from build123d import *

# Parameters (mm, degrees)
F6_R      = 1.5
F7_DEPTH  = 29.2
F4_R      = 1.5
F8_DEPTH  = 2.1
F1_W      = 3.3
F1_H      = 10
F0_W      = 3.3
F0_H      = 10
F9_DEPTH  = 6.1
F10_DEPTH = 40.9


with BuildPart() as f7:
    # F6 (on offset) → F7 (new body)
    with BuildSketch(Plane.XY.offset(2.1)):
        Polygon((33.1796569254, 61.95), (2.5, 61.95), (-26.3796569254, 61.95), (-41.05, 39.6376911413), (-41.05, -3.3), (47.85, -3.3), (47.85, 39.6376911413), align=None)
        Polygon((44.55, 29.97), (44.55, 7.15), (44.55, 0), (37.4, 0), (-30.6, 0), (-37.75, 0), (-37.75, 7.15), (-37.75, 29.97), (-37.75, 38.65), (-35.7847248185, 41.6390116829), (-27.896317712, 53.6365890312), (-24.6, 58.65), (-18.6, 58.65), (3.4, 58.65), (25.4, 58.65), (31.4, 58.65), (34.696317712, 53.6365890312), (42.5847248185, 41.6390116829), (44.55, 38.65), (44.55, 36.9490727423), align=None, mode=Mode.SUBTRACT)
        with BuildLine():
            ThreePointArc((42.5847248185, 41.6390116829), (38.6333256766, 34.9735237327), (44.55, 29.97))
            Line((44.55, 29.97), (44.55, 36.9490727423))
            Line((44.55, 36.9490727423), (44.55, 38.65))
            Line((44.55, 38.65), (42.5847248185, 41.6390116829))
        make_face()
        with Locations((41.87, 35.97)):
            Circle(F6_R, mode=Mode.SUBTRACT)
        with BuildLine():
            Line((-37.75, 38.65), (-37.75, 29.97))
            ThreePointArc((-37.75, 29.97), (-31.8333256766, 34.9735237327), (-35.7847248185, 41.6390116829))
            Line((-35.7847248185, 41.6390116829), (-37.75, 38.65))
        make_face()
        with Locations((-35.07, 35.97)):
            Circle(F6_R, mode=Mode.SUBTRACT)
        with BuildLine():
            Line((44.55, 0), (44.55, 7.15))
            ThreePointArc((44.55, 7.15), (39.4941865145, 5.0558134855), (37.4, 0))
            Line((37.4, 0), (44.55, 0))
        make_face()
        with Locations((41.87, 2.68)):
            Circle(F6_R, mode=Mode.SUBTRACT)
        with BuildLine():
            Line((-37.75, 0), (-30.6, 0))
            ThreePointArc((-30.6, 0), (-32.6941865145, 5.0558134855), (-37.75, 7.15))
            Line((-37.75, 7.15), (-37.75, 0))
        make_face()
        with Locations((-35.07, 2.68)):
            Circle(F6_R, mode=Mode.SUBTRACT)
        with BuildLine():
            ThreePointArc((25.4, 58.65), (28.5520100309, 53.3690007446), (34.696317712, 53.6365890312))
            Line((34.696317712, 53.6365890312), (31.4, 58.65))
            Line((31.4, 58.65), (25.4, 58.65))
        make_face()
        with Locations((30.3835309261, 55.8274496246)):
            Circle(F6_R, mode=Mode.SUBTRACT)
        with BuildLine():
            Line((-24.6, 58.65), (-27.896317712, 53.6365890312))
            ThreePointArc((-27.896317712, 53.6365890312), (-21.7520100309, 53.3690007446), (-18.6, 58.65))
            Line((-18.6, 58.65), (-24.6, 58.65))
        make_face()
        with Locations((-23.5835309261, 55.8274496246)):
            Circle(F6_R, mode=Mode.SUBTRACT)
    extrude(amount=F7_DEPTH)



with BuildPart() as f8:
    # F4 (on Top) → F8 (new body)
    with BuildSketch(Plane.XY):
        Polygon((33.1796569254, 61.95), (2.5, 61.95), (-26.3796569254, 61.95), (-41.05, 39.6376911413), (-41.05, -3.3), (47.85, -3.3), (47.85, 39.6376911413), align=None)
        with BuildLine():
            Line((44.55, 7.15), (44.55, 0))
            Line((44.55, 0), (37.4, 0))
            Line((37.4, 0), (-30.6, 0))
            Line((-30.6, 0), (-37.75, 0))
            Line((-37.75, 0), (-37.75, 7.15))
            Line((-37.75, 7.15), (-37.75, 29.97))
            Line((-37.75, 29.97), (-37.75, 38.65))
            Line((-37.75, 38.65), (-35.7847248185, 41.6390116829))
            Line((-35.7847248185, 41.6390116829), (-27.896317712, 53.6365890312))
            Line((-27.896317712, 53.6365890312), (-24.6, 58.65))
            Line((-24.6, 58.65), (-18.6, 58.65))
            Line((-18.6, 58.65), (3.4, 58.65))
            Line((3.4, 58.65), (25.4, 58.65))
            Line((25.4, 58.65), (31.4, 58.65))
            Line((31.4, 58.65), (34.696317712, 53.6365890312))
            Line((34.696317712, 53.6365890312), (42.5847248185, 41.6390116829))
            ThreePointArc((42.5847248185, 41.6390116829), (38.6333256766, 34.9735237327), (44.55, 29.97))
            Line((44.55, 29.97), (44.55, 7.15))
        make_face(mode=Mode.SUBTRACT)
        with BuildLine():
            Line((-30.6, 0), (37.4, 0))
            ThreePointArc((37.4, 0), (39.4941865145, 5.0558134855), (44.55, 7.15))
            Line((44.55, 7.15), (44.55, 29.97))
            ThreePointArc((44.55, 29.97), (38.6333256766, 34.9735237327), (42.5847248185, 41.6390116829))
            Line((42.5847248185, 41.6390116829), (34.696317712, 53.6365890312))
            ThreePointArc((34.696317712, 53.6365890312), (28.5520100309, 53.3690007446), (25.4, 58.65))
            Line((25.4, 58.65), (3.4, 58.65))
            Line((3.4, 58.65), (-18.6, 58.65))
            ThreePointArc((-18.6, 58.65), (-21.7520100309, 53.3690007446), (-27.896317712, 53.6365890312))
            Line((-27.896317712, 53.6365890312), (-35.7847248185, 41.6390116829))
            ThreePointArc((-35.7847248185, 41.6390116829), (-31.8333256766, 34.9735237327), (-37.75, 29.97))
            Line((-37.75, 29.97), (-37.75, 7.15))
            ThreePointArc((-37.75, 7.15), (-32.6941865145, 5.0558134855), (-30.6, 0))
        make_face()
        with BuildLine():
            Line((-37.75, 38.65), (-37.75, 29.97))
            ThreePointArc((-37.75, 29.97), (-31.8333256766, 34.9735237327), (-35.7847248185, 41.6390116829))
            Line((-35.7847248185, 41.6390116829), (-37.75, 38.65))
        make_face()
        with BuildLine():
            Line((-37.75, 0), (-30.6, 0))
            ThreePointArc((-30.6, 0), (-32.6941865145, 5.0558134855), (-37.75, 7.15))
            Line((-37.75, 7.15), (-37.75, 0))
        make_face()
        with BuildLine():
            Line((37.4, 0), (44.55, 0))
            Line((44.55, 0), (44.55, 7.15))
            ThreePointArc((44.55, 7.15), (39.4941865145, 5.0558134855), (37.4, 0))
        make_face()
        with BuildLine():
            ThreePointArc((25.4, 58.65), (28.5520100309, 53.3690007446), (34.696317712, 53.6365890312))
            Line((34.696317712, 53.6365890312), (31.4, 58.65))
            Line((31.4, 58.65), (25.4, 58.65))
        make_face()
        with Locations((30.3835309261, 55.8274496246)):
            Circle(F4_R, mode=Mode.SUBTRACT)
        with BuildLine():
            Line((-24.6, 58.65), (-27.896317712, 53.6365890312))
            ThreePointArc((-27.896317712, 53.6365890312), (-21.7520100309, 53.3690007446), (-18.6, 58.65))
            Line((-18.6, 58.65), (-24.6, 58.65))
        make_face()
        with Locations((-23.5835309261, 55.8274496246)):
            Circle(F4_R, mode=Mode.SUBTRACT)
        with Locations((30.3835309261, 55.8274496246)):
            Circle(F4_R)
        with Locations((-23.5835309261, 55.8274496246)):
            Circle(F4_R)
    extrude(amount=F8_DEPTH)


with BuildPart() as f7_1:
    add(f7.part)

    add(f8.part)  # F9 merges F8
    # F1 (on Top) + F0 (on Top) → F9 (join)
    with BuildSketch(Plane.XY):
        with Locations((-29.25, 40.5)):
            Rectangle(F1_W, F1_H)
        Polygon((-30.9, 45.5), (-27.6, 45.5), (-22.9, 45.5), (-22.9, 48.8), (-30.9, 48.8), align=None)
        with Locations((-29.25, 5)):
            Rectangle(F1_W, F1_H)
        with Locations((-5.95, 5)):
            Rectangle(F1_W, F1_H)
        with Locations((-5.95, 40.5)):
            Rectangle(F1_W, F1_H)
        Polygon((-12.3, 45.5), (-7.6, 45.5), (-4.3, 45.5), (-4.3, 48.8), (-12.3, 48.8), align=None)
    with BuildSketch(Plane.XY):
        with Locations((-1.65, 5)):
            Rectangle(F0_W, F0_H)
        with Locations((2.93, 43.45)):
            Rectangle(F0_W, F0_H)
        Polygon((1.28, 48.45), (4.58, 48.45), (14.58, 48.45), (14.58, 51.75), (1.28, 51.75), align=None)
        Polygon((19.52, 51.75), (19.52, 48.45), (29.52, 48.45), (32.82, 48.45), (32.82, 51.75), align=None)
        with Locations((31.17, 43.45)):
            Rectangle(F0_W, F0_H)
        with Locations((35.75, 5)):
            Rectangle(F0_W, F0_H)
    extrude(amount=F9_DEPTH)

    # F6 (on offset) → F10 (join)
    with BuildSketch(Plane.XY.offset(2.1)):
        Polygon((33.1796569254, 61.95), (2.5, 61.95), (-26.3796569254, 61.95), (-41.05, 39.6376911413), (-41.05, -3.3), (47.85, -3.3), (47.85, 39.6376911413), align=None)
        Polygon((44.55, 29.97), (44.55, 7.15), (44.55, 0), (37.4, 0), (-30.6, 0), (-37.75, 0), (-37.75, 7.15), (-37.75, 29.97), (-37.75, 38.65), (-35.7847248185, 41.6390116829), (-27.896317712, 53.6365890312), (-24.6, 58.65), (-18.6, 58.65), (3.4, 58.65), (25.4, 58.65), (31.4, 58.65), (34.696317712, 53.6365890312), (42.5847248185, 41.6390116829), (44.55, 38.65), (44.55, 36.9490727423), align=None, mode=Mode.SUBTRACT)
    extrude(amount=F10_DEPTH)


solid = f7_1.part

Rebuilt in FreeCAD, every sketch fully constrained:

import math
import FreeCAD as App
import Part
import Sketcher
from FreeCAD import Vector

doc = App.newDocument("Part")
body = doc.addObject("PartDesign::Body", "Body")

sketch1 = doc.addObject("Sketcher::SketchObject", "Sketch")
body.addObject(sketch1)
sketch1.AttachmentSupport = (doc.XY_Plane, [""])
sketch1.MapMode = "FlatFace"
sketch1.AttachmentOffset = App.Placement(Vector(0, 0, 2.1), App.Rotation())
sketch1.addGeometry(Part.LineSegment(Vector(33.2, 62, 0), Vector(-26.4, 62, 0)), False)
sketch1.addGeometry(Part.LineSegment(Vector(-26.4, 62, 0), Vector(-41, 39.6, 0)), False)
sketch1.addGeometry(Part.LineSegment(Vector(-41, 39.6, 0), Vector(-41, -3.3, 0)), False)
sketch1.addGeometry(Part.LineSegment(Vector(-41, -3.3, 0), Vector(47.9, -3.3, 0)), False)
sketch1.addGeometry(Part.LineSegment(Vector(47.9, -3.3, 0), Vector(47.9, 39.6, 0)), False)
sketch1.addGeometry(Part.LineSegment(Vector(47.9, 39.6, 0), Vector(33.2, 62, 0)), False)
sketch1.addGeometry(Part.Circle(Vector(-35.1, 2.7, 0), Vector(0, 0, 1), 1.5), False)
sketch1.addGeometry(Part.Circle(Vector(41.9, 2.7, 0), Vector(0, 0, 1), 1.5), False)
sketch1.addGeometry(Part.Circle(Vector(-35.1, 36, 0), Vector(0, 0, 1), 1.5), False)
sketch1.addGeometry(Part.Circle(Vector(-23.6, 55.8, 0), Vector(0, 0, 1), 1.5), False)
sketch1.addGeometry(Part.LineSegment(Vector(44.5, 30, 0), Vector(44.5, 7.2, 0)), False)
sketch1.addGeometry(Part.ArcOfCircle(Part.Circle(Vector(44.5, 0, 0), Vector(0, 0, 1), 7.2), math.radians(90), math.radians(180)), False)
sketch1.addGeometry(Part.LineSegment(Vector(37.4, 0, 0), Vector(-30.6, 0, 0)), False)
sketch1.addGeometry(Part.ArcOfCircle(Part.Circle(Vector(-37.8, 0, 0), Vector(0, 0, 1), 7.2), math.radians(0), math.radians(90)), False)
sketch1.addGeometry(Part.LineSegment(Vector(-37.8, 7.2, 0), Vector(-37.8, 30, 0)), False)
sketch1.addGeometry(Part.ArcOfCircle(Part.Circle(Vector(-37.8, 36, 0), Vector(0, 0, 1), 6), math.radians(-90), math.radians(71)), False)
sketch1.addGeometry(Part.LineSegment(Vector(-35.8, 41.6, 0), Vector(-27.9, 53.6, 0)), False)
sketch1.addGeometry(Part.ArcOfCircle(Part.Circle(Vector(-24.6, 58.6, 0), Vector(0, 0, 1), 6), math.radians(-123), math.radians(0)), False)
sketch1.addGeometry(Part.LineSegment(Vector(-18.6, 58.6, 0), Vector(25.4, 58.6, 0)), False)
sketch1.addGeometry(Part.ArcOfCircle(Part.Circle(Vector(31.4, 58.6, 0), Vector(0, 0, 1), 6), math.radians(180), math.radians(303)), False)
sketch1.addGeometry(Part.LineSegment(Vector(34.7, 53.6, 0), Vector(42.6, 41.6, 0)), False)
sketch1.addGeometry(Part.ArcOfCircle(Part.Circle(Vector(44.5, 36, 0), Vector(0, 0, 1), 6), math.radians(109), math.radians(270)), False)
sketch1.addGeometry(Part.Circle(Vector(41.9, 36, 0), Vector(0, 0, 1), 1.5), False)
sketch1.addGeometry(Part.Circle(Vector(30.4, 55.8, 0), Vector(0, 0, 1), 1.5), False)
sketch1.addConstraint(Sketcher.Constraint("Coincident", 0, 2, 1, 1))
sketch1.addConstraint(Sketcher.Constraint("Coincident", 1, 2, 2, 1))
sketch1.addConstraint(Sketcher.Constraint("Coincident", 2, 2, 3, 1))
sketch1.addConstraint(Sketcher.Constraint("Coincident", 3, 2, 4, 1))
sketch1.addConstraint(Sketcher.Constraint("Coincident", 4, 2, 5, 1))
sketch1.addConstraint(Sketcher.Constraint("Coincident", 5, 2, 0, 1))
sketch1.addConstraint(Sketcher.Constraint("Coincident", 10, 2, 11, 1))
sketch1.addConstraint(Sketcher.Constraint("Coincident", 11, 2, 12, 1))
sketch1.addConstraint(Sketcher.Constraint("Coincident", 12, 2, 13, 1))
sketch1.addConstraint(Sketcher.Constraint("Coincident", 13, 2, 14, 1))
sketch1.addConstraint(Sketcher.Constraint("Coincident", 14, 2, 15, 1))
sketch1.addConstraint(Sketcher.Constraint("Coincident", 15, 2, 16, 1))
sketch1.addConstraint(Sketcher.Constraint("Coincident", 16, 2, 17, 1))
sketch1.addConstraint(Sketcher.Constraint("Coincident", 17, 2, 18, 1))
sketch1.addConstraint(Sketcher.Constraint("Coincident", 18, 2, 19, 1))
sketch1.addConstraint(Sketcher.Constraint("Coincident", 19, 2, 20, 1))
sketch1.addConstraint(Sketcher.Constraint("Coincident", 20, 2, 21, 1))
sketch1.addConstraint(Sketcher.Constraint("Coincident", 21, 2, 10, 1))
sketch1.addConstraint(Sketcher.Constraint("Horizontal", 0))
sketch1.addConstraint(Sketcher.Constraint("Vertical", 2))
sketch1.addConstraint(Sketcher.Constraint("Horizontal", 3))
sketch1.addConstraint(Sketcher.Constraint("Vertical", 4))
sketch1.addConstraint(Sketcher.Constraint("Vertical", 10))
sketch1.addConstraint(Sketcher.Constraint("Horizontal", 12))
sketch1.addConstraint(Sketcher.Constraint("Vertical", 14))
sketch1.addConstraint(Sketcher.Constraint("Horizontal", 18))
sketch1.addConstraint(Sketcher.Constraint("Equal", 6, 7))
sketch1.addConstraint(Sketcher.Constraint("Equal", 7, 8))
sketch1.addConstraint(Sketcher.Constraint("Equal", 8, 9))
sketch1.addConstraint(Sketcher.Constraint("Equal", 11, 13))
sketch1.addConstraint(Sketcher.Constraint("Equal", 15, 17))
sketch1.addConstraint(Sketcher.Constraint("Equal", 17, 19))
sketch1.addConstraint(Sketcher.Constraint("Equal", 19, 21))
sketch1.addConstraint(Sketcher.Constraint("Equal", 9, 22))
sketch1.addConstraint(Sketcher.Constraint("Equal", 22, 23))
sketch1.addConstraint(Sketcher.Constraint("PointOnObject", 11, 3, -1))
sketch1.addConstraint(Sketcher.Constraint("PointOnObject", 13, 3, -1))
sketch1.addConstraint(Sketcher.Constraint("PointOnObject", 11, 2, -1))
sketch1.addConstraint(Sketcher.Constraint("Parallel", 1, 16))
sketch1.addConstraint(Sketcher.Constraint("Parallel", 5, 20))
sketch1.addConstraint(Sketcher.Constraint("Horizontal", 6, 3, 7, 3))
sketch1.addConstraint(Sketcher.Constraint("Horizontal", 8, 3, 15, 3))
sketch1.addConstraint(Sketcher.Constraint("Horizontal", 17, 3, 19, 3))
sketch1.addConstraint(Sketcher.Constraint("Horizontal", 15, 3, 21, 3))
sketch1.addConstraint(Sketcher.Constraint("Horizontal", 21, 3, 22, 3))
sketch1.addConstraint(Sketcher.Constraint("Horizontal", 9, 3, 23, 3))
sketch1.addConstraint(Sketcher.Constraint("Horizontal", 1, 2, 4, 2))
sketch1.addConstraint(Sketcher.Constraint("Horizontal", 19, 3, 17, 2))
sketch1.addConstraint(Sketcher.Constraint("Horizontal", 16, 2, 19, 2))
sketch1.addConstraint(Sketcher.Constraint("Horizontal", 15, 2, 20, 2))
sketch1.addConstraint(Sketcher.Constraint("Vertical", 6, 3, 8, 3))
sketch1.addConstraint(Sketcher.Constraint("Vertical", 13, 3, 15, 3))
sketch1.addConstraint(Sketcher.Constraint("Vertical", 11, 3, 21, 3))
sketch1.addConstraint(Sketcher.Constraint("Vertical", 7, 3, 22, 3))
sketch1.addConstraint(Sketcher.Constraint("Vertical", 21, 3, 10, 2))
sketch1.addConstraint(Sketcher.Constraint("Vertical", 15, 3, 13, 2))
sketch1.addConstraint(Sketcher.Constraint("Equal", 1, 5))
sketch1.addConstraint(Sketcher.Constraint("Diameter", 6, 3.0))
sketch1.addConstraint(Sketcher.Constraint("Radius", 15, 6.0))
sketch1.addConstraint(Sketcher.Constraint("DistanceX", 12, 2, 12, 1, 68.0))
sketch1.addConstraint(Sketcher.Constraint("DistanceX", 18, 1, 18, 2, 44.0))
sketch1.addConstraint(Sketcher.Constraint("Radius", 11, 7.15))
sketch1.addConstraint(Sketcher.Constraint("DistanceX", 3, 1, 3, 2, 88.9))
sketch1.addConstraint(Sketcher.Constraint("DistanceY", 10, 2, 10, 1, 22.82))
sketch1.addConstraint(Sketcher.Constraint("DistanceX", 17, 3, -1, 1, 24.6))
sketch1.addConstraint(Sketcher.Constraint("DistanceY", 2, 2, -1, 1, 3.3))
sketch1.addConstraint(Sketcher.Constraint("DistanceY", 17, 3, 0, 2, 3.3))
sketch1.addConstraint(Sketcher.Constraint("DistanceX", 1, 2, 15, 3, 3.3))
sketch1.addConstraint(Sketcher.Constraint("DistanceX", 6, 3, -1, 1, 35.07))
sketch1.addConstraint(Sketcher.Constraint("DistanceY", -1, 1, 6, 3, 2.68))
sketch1.addConstraint(Sketcher.Constraint("DistanceX", -1, 1, 7, 3, 41.87))
sketch1.addConstraint(Sketcher.Constraint("DistanceY", -1, 1, 17, 3, 58.65))
sketch1.addConstraint(Sketcher.Constraint("DistanceY", 2, 2, 2, 1, 42.937691))
sketch1.addConstraint(Sketcher.Constraint("Distance", 16, 14.35858))
sketch1.addConstraint(Sketcher.Constraint("DistanceX", 0, 2, 0, 1, 59.559314))
sketch1.addConstraint(Sketcher.Constraint("DistanceX", 9, 3, -1, 1, 23.583531))
sketch1.addConstraint(Sketcher.Constraint("DistanceY", -1, 1, 9, 3, 55.82745))
sketch1.addConstraint(Sketcher.Constraint("DistanceX", -1, 1, 23, 3, 30.383531))
pad1 = doc.addObject("PartDesign::Pad", "Pad")
body.addObject(pad1)
pad1.Profile = sketch1
pad1.Length = 29.2
body2 = doc.addObject("PartDesign::Body", "Body001")

sketch2 = doc.addObject("Sketcher::SketchObject", "Sketch001")
body2.addObject(sketch2)
sketch2.AttachmentSupport = (doc.getObject("XY_Plane001"), [""])
sketch2.MapMode = "FlatFace"
sketch2.addGeometry(Part.LineSegment(Vector(33, 62, 0), Vector(-26, 62, 0)), False)
sketch2.addGeometry(Part.LineSegment(Vector(-26, 62, 0), Vector(-41, 40, 0)), False)
sketch2.addGeometry(Part.LineSegment(Vector(-41, 40, 0), Vector(-41, -3, 0)), False)
sketch2.addGeometry(Part.LineSegment(Vector(-41, -3, 0), Vector(48, -3, 0)), False)
sketch2.addGeometry(Part.LineSegment(Vector(48, -3, 0), Vector(48, 40, 0)), False)
sketch2.addGeometry(Part.LineSegment(Vector(48, 40, 0), Vector(33, 62, 0)), False)
sketch2.addConstraint(Sketcher.Constraint("Coincident", 0, 2, 1, 1))
sketch2.addConstraint(Sketcher.Constraint("Coincident", 1, 2, 2, 1))
sketch2.addConstraint(Sketcher.Constraint("Coincident", 2, 2, 3, 1))
sketch2.addConstraint(Sketcher.Constraint("Coincident", 3, 2, 4, 1))
sketch2.addConstraint(Sketcher.Constraint("Coincident", 4, 2, 5, 1))
sketch2.addConstraint(Sketcher.Constraint("Coincident", 5, 2, 0, 1))
sketch2.addConstraint(Sketcher.Constraint("Horizontal", 0))
sketch2.addConstraint(Sketcher.Constraint("Vertical", 2))
sketch2.addConstraint(Sketcher.Constraint("Horizontal", 3))
sketch2.addConstraint(Sketcher.Constraint("Vertical", 4))
sketch2.addConstraint(Sketcher.Constraint("Horizontal", 1, 2, 4, 2))
sketch2.addConstraint(Sketcher.Constraint("Equal", 1, 5))
sketch2.addConstraint(Sketcher.Constraint("DistanceX", 3, 1, 3, 2, 88.9))
sketch2.addConstraint(Sketcher.Constraint("DistanceY", 2, 2, -1, 1, 3.3))
sketch2.addConstraint(Sketcher.Constraint("DistanceY", -1, 1, 0, 2, 61.95))
sketch2.addConstraint(Sketcher.Constraint("DistanceX", 1, 2, -1, 1, 41.05))
sketch2.addConstraint(Sketcher.Constraint("DistanceY", 2, 2, 2, 1, 42.937691))
sketch2.addConstraint(Sketcher.Constraint("DistanceX", 0, 2, 0, 1, 59.559314))
pad2 = doc.addObject("PartDesign::Pad", "Pad001")
body2.addObject(pad2)
pad2.Profile = sketch2
pad2.Length = 2.1
doc.recompute()

boolean = doc.addObject("PartDesign::Boolean", "Boolean")
body.addObject(boolean)
boolean.Type = "Fuse"
boolean.addObjects([body2])

sketch3 = doc.addObject("Sketcher::SketchObject", "Sketch002")
body.addObject(sketch3)
sketch3.AttachmentSupport = (doc.XY_Plane, [""])
sketch3.MapMode = "FlatFace"
sketch3.addGeometry(Part.LineSegment(Vector(-30.9, 35.5, 0), Vector(-27.6, 35.5, 0)), False)
sketch3.addGeometry(Part.LineSegment(Vector(-27.6, 35.5, 0), Vector(-27.6, 45.5, 0)), False)
sketch3.addGeometry(Part.LineSegment(Vector(-27.6, 45.5, 0), Vector(-22.9, 45.5, 0)), False)
sketch3.addGeometry(Part.LineSegment(Vector(-22.9, 45.5, 0), Vector(-22.9, 48.8, 0)), False)
sketch3.addGeometry(Part.LineSegment(Vector(-22.9, 48.8, 0), Vector(-30.9, 48.8, 0)), False)
sketch3.addGeometry(Part.LineSegment(Vector(-30.9, 48.8, 0), Vector(-30.9, 35.5, 0)), False)
sketch3.addGeometry(Part.LineSegment(Vector(-30.9, 10, 0), Vector(-30.9, 0, 0)), False)
sketch3.addGeometry(Part.LineSegment(Vector(-30.9, 0, 0), Vector(-27.6, 0, 0)), False)
sketch3.addGeometry(Part.LineSegment(Vector(-27.6, 0, 0), Vector(-27.6, 10, 0)), False)
sketch3.addGeometry(Part.LineSegment(Vector(-27.6, 10, 0), Vector(-30.9, 10, 0)), False)
sketch3.addGeometry(Part.LineSegment(Vector(-7.6, 10, 0), Vector(-7.6, 0, 0)), False)
sketch3.addGeometry(Part.LineSegment(Vector(-7.6, 0, 0), Vector(-4.3, 0, 0)), False)
sketch3.addGeometry(Part.LineSegment(Vector(-4.3, 0, 0), Vector(-4.3, 10, 0)), False)
sketch3.addGeometry(Part.LineSegment(Vector(-4.3, 10, 0), Vector(-7.6, 10, 0)), False)
sketch3.addGeometry(Part.LineSegment(Vector(-7.6, 45.5, 0), Vector(-7.6, 35.5, 0)), False)
sketch3.addGeometry(Part.LineSegment(Vector(-7.6, 35.5, 0), Vector(-4.3, 35.5, 0)), False)
sketch3.addGeometry(Part.LineSegment(Vector(-4.3, 35.5, 0), Vector(-4.3, 48.8, 0)), False)
sketch3.addGeometry(Part.LineSegment(Vector(-4.3, 48.8, 0), Vector(-12.3, 48.8, 0)), False)
sketch3.addGeometry(Part.LineSegment(Vector(-12.3, 48.8, 0), Vector(-12.3, 45.5, 0)), False)
sketch3.addGeometry(Part.LineSegment(Vector(-12.3, 45.5, 0), Vector(-7.6, 45.5, 0)), False)
sketch3.addGeometry(Part.LineSegment(Vector(-3.3, 10, 0), Vector(-3.3, 0, 0)), False)
sketch3.addGeometry(Part.LineSegment(Vector(-3.3, 0, 0), Vector(0, 0, 0)), False)
sketch3.addGeometry(Part.LineSegment(Vector(0, 0, 0), Vector(0, 10, 0)), False)
sketch3.addGeometry(Part.LineSegment(Vector(0, 10, 0), Vector(-3.3, 10, 0)), False)
sketch3.addGeometry(Part.LineSegment(Vector(1.3, 38.5, 0), Vector(4.6, 38.5, 0)), False)
sketch3.addGeometry(Part.LineSegment(Vector(4.6, 38.5, 0), Vector(4.6, 48.5, 0)), False)
sketch3.addGeometry(Part.LineSegment(Vector(4.6, 48.5, 0), Vector(14.6, 48.5, 0)), False)
sketch3.addGeometry(Part.LineSegment(Vector(14.6, 48.5, 0), Vector(14.6, 51.8, 0)), False)
sketch3.addGeometry(Part.LineSegment(Vector(14.6, 51.8, 0), Vector(1.3, 51.8, 0)), False)
sketch3.addGeometry(Part.LineSegment(Vector(1.3, 51.8, 0), Vector(1.3, 38.5, 0)), False)
sketch3.addGeometry(Part.LineSegment(Vector(19.5, 51.8, 0), Vector(19.5, 48.5, 0)), False)
sketch3.addGeometry(Part.LineSegment(Vector(19.5, 48.5, 0), Vector(29.5, 48.5, 0)), False)
sketch3.addGeometry(Part.LineSegment(Vector(29.5, 48.5, 0), Vector(29.5, 38.5, 0)), False)
sketch3.addGeometry(Part.LineSegment(Vector(29.5, 38.5, 0), Vector(32.8, 38.5, 0)), False)
sketch3.addGeometry(Part.LineSegment(Vector(32.8, 38.5, 0), Vector(32.8, 51.8, 0)), False)
sketch3.addGeometry(Part.LineSegment(Vector(32.8, 51.8, 0), Vector(19.5, 51.8, 0)), False)
sketch3.addGeometry(Part.LineSegment(Vector(34.1, 10, 0), Vector(34.1, 0, 0)), False)
sketch3.addGeometry(Part.LineSegment(Vector(34.1, 0, 0), Vector(37.4, 0, 0)), False)
sketch3.addGeometry(Part.LineSegment(Vector(37.4, 0, 0), Vector(37.4, 10, 0)), False)
sketch3.addGeometry(Part.LineSegment(Vector(37.4, 10, 0), Vector(34.1, 10, 0)), False)
sketch3.addConstraint(Sketcher.Constraint("Coincident", 0, 2, 1, 1))
sketch3.addConstraint(Sketcher.Constraint("Coincident", 1, 2, 2, 1))
sketch3.addConstraint(Sketcher.Constraint("Coincident", 2, 2, 3, 1))
sketch3.addConstraint(Sketcher.Constraint("Coincident", 3, 2, 4, 1))
sketch3.addConstraint(Sketcher.Constraint("Coincident", 4, 2, 5, 1))
sketch3.addConstraint(Sketcher.Constraint("Coincident", 5, 2, 0, 1))
sketch3.addConstraint(Sketcher.Constraint("Coincident", 6, 2, 7, 1))
sketch3.addConstraint(Sketcher.Constraint("Coincident", 7, 2, 8, 1))
sketch3.addConstraint(Sketcher.Constraint("Coincident", 8, 2, 9, 1))
sketch3.addConstraint(Sketcher.Constraint("Coincident", 9, 2, 6, 1))
sketch3.addConstraint(Sketcher.Constraint("Coincident", 10, 2, 11, 1))
sketch3.addConstraint(Sketcher.Constraint("Coincident", 11, 2, 12, 1))
sketch3.addConstraint(Sketcher.Constraint("Coincident", 12, 2, 13, 1))
sketch3.addConstraint(Sketcher.Constraint("Coincident", 13, 2, 10, 1))
sketch3.addConstraint(Sketcher.Constraint("Coincident", 14, 2, 15, 1))
sketch3.addConstraint(Sketcher.Constraint("Coincident", 15, 2, 16, 1))
sketch3.addConstraint(Sketcher.Constraint("Coincident", 16, 2, 17, 1))
sketch3.addConstraint(Sketcher.Constraint("Coincident", 17, 2, 18, 1))
sketch3.addConstraint(Sketcher.Constraint("Coincident", 18, 2, 19, 1))
sketch3.addConstraint(Sketcher.Constraint("Coincident", 19, 2, 14, 1))
sketch3.addConstraint(Sketcher.Constraint("Coincident", 20, 2, 21, 1))
sketch3.addConstraint(Sketcher.Constraint("Coincident", 21, 2, 22, 1))
sketch3.addConstraint(Sketcher.Constraint("Coincident", 22, 2, 23, 1))
sketch3.addConstraint(Sketcher.Constraint("Coincident", 23, 2, 20, 1))
sketch3.addConstraint(Sketcher.Constraint("Coincident", 24, 2, 25, 1))
sketch3.addConstraint(Sketcher.Constraint("Coincident", 25, 2, 26, 1))
sketch3.addConstraint(Sketcher.Constraint("Coincident", 26, 2, 27, 1))
sketch3.addConstraint(Sketcher.Constraint("Coincident", 27, 2, 28, 1))
sketch3.addConstraint(Sketcher.Constraint("Coincident", 28, 2, 29, 1))
sketch3.addConstraint(Sketcher.Constraint("Coincident", 29, 2, 24, 1))
sketch3.addConstraint(Sketcher.Constraint("Coincident", 30, 2, 31, 1))
sketch3.addConstraint(Sketcher.Constraint("Coincident", 31, 2, 32, 1))
sketch3.addConstraint(Sketcher.Constraint("Coincident", 32, 2, 33, 1))
sketch3.addConstraint(Sketcher.Constraint("Coincident", 33, 2, 34, 1))
sketch3.addConstraint(Sketcher.Constraint("Coincident", 34, 2, 35, 1))
sketch3.addConstraint(Sketcher.Constraint("Coincident", 35, 2, 30, 1))
sketch3.addConstraint(Sketcher.Constraint("Coincident", 36, 2, 37, 1))
sketch3.addConstraint(Sketcher.Constraint("Coincident", 37, 2, 38, 1))
sketch3.addConstraint(Sketcher.Constraint("Coincident", 38, 2, 39, 1))
sketch3.addConstraint(Sketcher.Constraint("Coincident", 39, 2, 36, 1))
sketch3.addConstraint(Sketcher.Constraint("Horizontal", 0))
sketch3.addConstraint(Sketcher.Constraint("Vertical", 1))
sketch3.addConstraint(Sketcher.Constraint("Horizontal", 2))
sketch3.addConstraint(Sketcher.Constraint("Vertical", 3))
sketch3.addConstraint(Sketcher.Constraint("Horizontal", 4))
sketch3.addConstraint(Sketcher.Constraint("Vertical", 5))
sketch3.addConstraint(Sketcher.Constraint("Vertical", 6))
sketch3.addConstraint(Sketcher.Constraint("Horizontal", 7))
sketch3.addConstraint(Sketcher.Constraint("Vertical", 8))
sketch3.addConstraint(Sketcher.Constraint("Horizontal", 9))
sketch3.addConstraint(Sketcher.Constraint("Vertical", 10))
sketch3.addConstraint(Sketcher.Constraint("Horizontal", 11))
sketch3.addConstraint(Sketcher.Constraint("Vertical", 12))
sketch3.addConstraint(Sketcher.Constraint("Horizontal", 13))
sketch3.addConstraint(Sketcher.Constraint("Vertical", 14))
sketch3.addConstraint(Sketcher.Constraint("Horizontal", 15))
sketch3.addConstraint(Sketcher.Constraint("Vertical", 16))
sketch3.addConstraint(Sketcher.Constraint("Horizontal", 17))
sketch3.addConstraint(Sketcher.Constraint("Vertical", 18))
sketch3.addConstraint(Sketcher.Constraint("Horizontal", 19))
sketch3.addConstraint(Sketcher.Constraint("Vertical", 20))
sketch3.addConstraint(Sketcher.Constraint("Horizontal", 21))
sketch3.addConstraint(Sketcher.Constraint("Vertical", 22))
sketch3.addConstraint(Sketcher.Constraint("Horizontal", 23))
sketch3.addConstraint(Sketcher.Constraint("Horizontal", 24))
sketch3.addConstraint(Sketcher.Constraint("Vertical", 25))
sketch3.addConstraint(Sketcher.Constraint("Horizontal", 26))
sketch3.addConstraint(Sketcher.Constraint("Vertical", 27))
sketch3.addConstraint(Sketcher.Constraint("Horizontal", 28))
sketch3.addConstraint(Sketcher.Constraint("Vertical", 29))
sketch3.addConstraint(Sketcher.Constraint("Vertical", 30))
sketch3.addConstraint(Sketcher.Constraint("Horizontal", 31))
sketch3.addConstraint(Sketcher.Constraint("Vertical", 32))
sketch3.addConstraint(Sketcher.Constraint("Horizontal", 33))
sketch3.addConstraint(Sketcher.Constraint("Vertical", 34))
sketch3.addConstraint(Sketcher.Constraint("Horizontal", 35))
sketch3.addConstraint(Sketcher.Constraint("Vertical", 36))
sketch3.addConstraint(Sketcher.Constraint("Horizontal", 37))
sketch3.addConstraint(Sketcher.Constraint("Vertical", 38))
sketch3.addConstraint(Sketcher.Constraint("Horizontal", 39))
sketch3.addConstraint(Sketcher.Constraint("Coincident", 21, 2, -1, 1))
sketch3.addConstraint(Sketcher.Constraint("PointOnObject", 6, 2, -1))
sketch3.addConstraint(Sketcher.Constraint("PointOnObject", 10, 2, -1))
sketch3.addConstraint(Sketcher.Constraint("PointOnObject", 36, 2, -1))
sketch3.addConstraint(Sketcher.Constraint("Horizontal", 9, 2, 12, 2))
sketch3.addConstraint(Sketcher.Constraint("Horizontal", 5, 2, 14, 2))
sketch3.addConstraint(Sketcher.Constraint("Horizontal", 4, 2, 16, 2))
sketch3.addConstraint(Sketcher.Constraint("Horizontal", 2, 2, 18, 2))
sketch3.addConstraint(Sketcher.Constraint("Horizontal", 13, 2, 22, 2))
sketch3.addConstraint(Sketcher.Constraint("Horizontal", 26, 2, 30, 2))
sketch3.addConstraint(Sketcher.Constraint("Horizontal", 29, 2, 32, 2))
sketch3.addConstraint(Sketcher.Constraint("Horizontal", 28, 2, 34, 2))
sketch3.addConstraint(Sketcher.Constraint("Horizontal", 23, 2, 38, 2))
sketch3.addConstraint(Sketcher.Constraint("Vertical", 5, 2, 6, 2))
sketch3.addConstraint(Sketcher.Constraint("Vertical", 1, 2, 7, 2))
sketch3.addConstraint(Sketcher.Constraint("Vertical", 13, 2, 14, 2))
sketch3.addConstraint(Sketcher.Constraint("Vertical", 12, 2, 15, 2))
sketch3.addConstraint(Sketcher.Constraint("Equal", 9, 11))
sketch3.addConstraint(Sketcher.Constraint("Equal", 4, 17))
sketch3.addConstraint(Sketcher.Constraint("Equal", 15, 21))
sketch3.addConstraint(Sketcher.Constraint("Equal", 23, 24))
sketch3.addConstraint(Sketcher.Constraint("Equal", 26, 31))
sketch3.addConstraint(Sketcher.Constraint("Equal", 24, 33))
sketch3.addConstraint(Sketcher.Constraint("Equal", 33, 37))
sketch3.addConstraint(Sketcher.Constraint("Equal", 31, 1))
sketch3.addConstraint(Sketcher.Constraint("Equal", 39, 3))
sketch3.addConstraint(Sketcher.Constraint("Equal", 1, 6))
sketch3.addConstraint(Sketcher.Constraint("Equal", 22, 25))
sketch3.addConstraint(Sketcher.Constraint("Equal", 18, 27))
sketch3.addConstraint(Sketcher.Constraint("DistanceX", 4, 2, 4, 1, 8.0))
sketch3.addConstraint(Sketcher.Constraint("DistanceX", 26, 1, 26, 2, 10.0))
sketch3.addConstraint(Sketcher.Constraint("DistanceX", 0, 1, 0, 2, 3.3))
sketch3.addConstraint(Sketcher.Constraint("DistanceX", 7, 2, 10, 2, 20.0))
sketch3.addConstraint(Sketcher.Constraint("DistanceX", 11, 2, 20, 2, 1.0))
sketch3.addConstraint(Sketcher.Constraint("DistanceY", -1, 1, 0, 2, 35.5))
sketch3.addConstraint(Sketcher.Constraint("DistanceX", -1, 1, 36, 2, 34.1))
sketch3.addConstraint(Sketcher.Constraint("DistanceX", -1, 1, 24, 2, 4.58))
sketch3.addConstraint(Sketcher.Constraint("DistanceY", -1, 1, 24, 2, 38.45))
sketch3.addConstraint(Sketcher.Constraint("DistanceX", -1, 1, 30, 2, 19.52))
pad3 = doc.addObject("PartDesign::Pad", "Pad002")
body.addObject(pad3)
pad3.Profile = sketch3
pad3.Length = 6.1

sketch4 = doc.addObject("Sketcher::SketchObject", "Sketch003")
body.addObject(sketch4)
sketch4.AttachmentSupport = (doc.XY_Plane, [""])
sketch4.MapMode = "FlatFace"
sketch4.AttachmentOffset = App.Placement(Vector(0, 0, 2.1), App.Rotation())
sketch4.addGeometry(Part.LineSegment(Vector(33.2, 62, 0), Vector(-26.4, 62, 0)), False)
sketch4.addGeometry(Part.LineSegment(Vector(-26.4, 62, 0), Vector(-41, 39.6, 0)), False)
sketch4.addGeometry(Part.LineSegment(Vector(-41, 39.6, 0), Vector(-41, -3.3, 0)), False)
sketch4.addGeometry(Part.LineSegment(Vector(-41, -3.3, 0), Vector(47.9, -3.3, 0)), False)
sketch4.addGeometry(Part.LineSegment(Vector(47.9, -3.3, 0), Vector(47.9, 39.6, 0)), False)
sketch4.addGeometry(Part.LineSegment(Vector(47.9, 39.6, 0), Vector(33.2, 62, 0)), False)
sketch4.addGeometry(Part.LineSegment(Vector(44.5, 38.6, 0), Vector(44.5, 0, 0)), False)
sketch4.addGeometry(Part.LineSegment(Vector(44.5, 0, 0), Vector(-37.8, 0, 0)), False)
sketch4.addGeometry(Part.LineSegment(Vector(-37.8, 0, 0), Vector(-37.8, 38.6, 0)), False)
sketch4.addGeometry(Part.LineSegment(Vector(-37.8, 38.6, 0), Vector(-35.8, 41.6, 0)), False)
sketch4.addGeometry(Part.LineSegment(Vector(-35.8, 41.6, 0), Vector(-27.9, 53.6, 0)), False)
sketch4.addGeometry(Part.LineSegment(Vector(-27.9, 53.6, 0), Vector(-24.6, 58.6, 0)), False)
sketch4.addGeometry(Part.LineSegment(Vector(-24.6, 58.6, 0), Vector(31.4, 58.6, 0)), False)
sketch4.addGeometry(Part.LineSegment(Vector(31.4, 58.6, 0), Vector(34.7, 53.6, 0)), False)
sketch4.addGeometry(Part.LineSegment(Vector(34.7, 53.6, 0), Vector(42.6, 41.6, 0)), False)
sketch4.addGeometry(Part.LineSegment(Vector(42.6, 41.6, 0), Vector(44.5, 38.6, 0)), False)
sketch4.addConstraint(Sketcher.Constraint("Coincident", 0, 2, 1, 1))
sketch4.addConstraint(Sketcher.Constraint("Coincident", 1, 2, 2, 1))
sketch4.addConstraint(Sketcher.Constraint("Coincident", 2, 2, 3, 1))
sketch4.addConstraint(Sketcher.Constraint("Coincident", 3, 2, 4, 1))
sketch4.addConstraint(Sketcher.Constraint("Coincident", 4, 2, 5, 1))
sketch4.addConstraint(Sketcher.Constraint("Coincident", 5, 2, 0, 1))
sketch4.addConstraint(Sketcher.Constraint("Coincident", 6, 2, 7, 1))
sketch4.addConstraint(Sketcher.Constraint("Coincident", 7, 2, 8, 1))
sketch4.addConstraint(Sketcher.Constraint("Coincident", 8, 2, 9, 1))
sketch4.addConstraint(Sketcher.Constraint("Coincident", 9, 2, 10, 1))
sketch4.addConstraint(Sketcher.Constraint("Coincident", 10, 2, 11, 1))
sketch4.addConstraint(Sketcher.Constraint("Coincident", 11, 2, 12, 1))
sketch4.addConstraint(Sketcher.Constraint("Coincident", 12, 2, 13, 1))
sketch4.addConstraint(Sketcher.Constraint("Coincident", 13, 2, 14, 1))
sketch4.addConstraint(Sketcher.Constraint("Coincident", 14, 2, 15, 1))
sketch4.addConstraint(Sketcher.Constraint("Coincident", 15, 2, 6, 1))
sketch4.addConstraint(Sketcher.Constraint("Horizontal", 0))
sketch4.addConstraint(Sketcher.Constraint("Vertical", 2))
sketch4.addConstraint(Sketcher.Constraint("Horizontal", 3))
sketch4.addConstraint(Sketcher.Constraint("Vertical", 4))
sketch4.addConstraint(Sketcher.Constraint("Vertical", 6))
sketch4.addConstraint(Sketcher.Constraint("Horizontal", 7))
sketch4.addConstraint(Sketcher.Constraint("Vertical", 8))
sketch4.addConstraint(Sketcher.Constraint("Horizontal", 12))
sketch4.addConstraint(Sketcher.Constraint("PointOnObject", 6, 2, -1))
sketch4.addConstraint(Sketcher.Constraint("Parallel", 1, 9))
sketch4.addConstraint(Sketcher.Constraint("Parallel", 9, 10))
sketch4.addConstraint(Sketcher.Constraint("Parallel", 10, 11))
sketch4.addConstraint(Sketcher.Constraint("Parallel", 5, 13))
sketch4.addConstraint(Sketcher.Constraint("Parallel", 13, 14))
sketch4.addConstraint(Sketcher.Constraint("Parallel", 14, 15))
sketch4.addConstraint(Sketcher.Constraint("Horizontal", 1, 2, 4, 2))
sketch4.addConstraint(Sketcher.Constraint("Horizontal", 10, 2, 13, 2))
sketch4.addConstraint(Sketcher.Constraint("Horizontal", 9, 2, 14, 2))
sketch4.addConstraint(Sketcher.Constraint("Horizontal", 8, 2, 15, 2))
sketch4.addConstraint(Sketcher.Constraint("Equal", 1, 5))
sketch4.addConstraint(Sketcher.Constraint("DistanceX", 12, 1, 12, 2, 56.0))
sketch4.addConstraint(Sketcher.Constraint("Distance", 11, 6.0))
sketch4.addConstraint(Sketcher.Constraint("DistanceX", 3, 1, 3, 2, 88.9))
sketch4.addConstraint(Sketcher.Constraint("DistanceX", 7, 2, 7, 1, 82.3))
sketch4.addConstraint(Sketcher.Constraint("DistanceY", 8, 2, 11, 2, 20.0))
sketch4.addConstraint(Sketcher.Constraint("DistanceY", 6, 2, 6, 1, 38.65))
sketch4.addConstraint(Sketcher.Constraint("DistanceY", 2, 2, -1, 1, 3.3))
sketch4.addConstraint(Sketcher.Constraint("DistanceX", 11, 2, -1, 1, 24.6))
sketch4.addConstraint(Sketcher.Constraint("DistanceX", 6, 2, 3, 2, 3.3))
sketch4.addConstraint(Sketcher.Constraint("DistanceY", 8, 2, 0, 2, 23.3))
sketch4.addConstraint(Sketcher.Constraint("DistanceY", 2, 2, 2, 1, 42.937691))
sketch4.addConstraint(Sketcher.Constraint("Distance", 9, 3.577219))
pad4 = doc.addObject("PartDesign::Pad", "Pad003")
body.addObject(pad4)
pad4.Profile = sketch4
pad4.Length = 40.9

doc.recompute()
